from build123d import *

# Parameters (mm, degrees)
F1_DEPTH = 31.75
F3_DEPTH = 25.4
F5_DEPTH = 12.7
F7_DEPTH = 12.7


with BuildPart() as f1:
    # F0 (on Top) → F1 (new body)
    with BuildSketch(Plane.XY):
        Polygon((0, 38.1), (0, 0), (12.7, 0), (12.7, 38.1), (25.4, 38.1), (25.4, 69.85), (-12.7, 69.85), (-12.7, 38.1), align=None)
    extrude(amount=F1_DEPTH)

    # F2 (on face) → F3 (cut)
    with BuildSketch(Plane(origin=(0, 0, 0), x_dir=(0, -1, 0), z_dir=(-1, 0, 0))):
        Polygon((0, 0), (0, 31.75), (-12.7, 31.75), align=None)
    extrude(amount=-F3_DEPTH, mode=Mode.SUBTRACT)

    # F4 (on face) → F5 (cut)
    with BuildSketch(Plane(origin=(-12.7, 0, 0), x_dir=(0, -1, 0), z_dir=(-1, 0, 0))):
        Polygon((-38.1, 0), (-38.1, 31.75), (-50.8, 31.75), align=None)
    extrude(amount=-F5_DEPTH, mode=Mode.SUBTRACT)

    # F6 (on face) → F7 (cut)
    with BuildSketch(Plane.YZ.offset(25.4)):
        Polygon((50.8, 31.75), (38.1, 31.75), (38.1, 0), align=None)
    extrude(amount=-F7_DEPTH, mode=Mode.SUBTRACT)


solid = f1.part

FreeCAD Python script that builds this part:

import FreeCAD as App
import Part
import Sketcher

V = App.Vector
Q = App.Units.Quantity


def add_polygon(sketch, points):
    """Adds a closed chain of lines whose ends are joined by coincident constraints."""
    first, n = sketch.GeometryCount, len(points)
    for a, b in zip(points, points[1:] + points[:1]):
        sketch.addGeometry(Part.LineSegment(App.Vector(*a, 0), App.Vector(*b, 0)), False)
    for i in range(n):
        sketch.addConstraint(Sketcher.Constraint("Coincident", first + i, 2, first + (i + 1) % n, 1))

doc = App.newDocument("Part")
body = doc.addObject("PartDesign::Body", "Body")

# Sketch on XY plane
sketch1 = body.newObject("Sketcher::SketchObject", "Sketch")
sketch1.AttachmentSupport = (doc.getObject("XY_Plane"), [""])
sketch1.MapMode = "FlatFace"
add_polygon(sketch1, [(0, 38), (0, 0), (13, 0), (13, 38), (25, 38), (25, 70), (-13, 70), (-13, 38)])  # lines 0-7
sketch1.addConstraint(Sketcher.Constraint("Vertical", 0))
sketch1.addConstraint(Sketcher.Constraint("Horizontal", 1))
sketch1.addConstraint(Sketcher.Constraint("Vertical", 2))
sketch1.addConstraint(Sketcher.Constraint("Horizontal", 3))
sketch1.addConstraint(Sketcher.Constraint("Vertical", 4))
sketch1.addConstraint(Sketcher.Constraint("Horizontal", 5))
sketch1.addConstraint(Sketcher.Constraint("Vertical", 6))
sketch1.addConstraint(Sketcher.Constraint("Horizontal", 7))
sketch1.addConstraint(Sketcher.Constraint("Coincident", 0, 2, -1, 1))
sketch1.addConstraint(Sketcher.Constraint("Symmetric", 2, 2, 6, 2, -2))
sketch1.addConstraint(Sketcher.Constraint("Equal", 1, 3))
sketch1.addConstraint(Sketcher.Constraint("Equal", 5, 0))
sketch1.addConstraint(Sketcher.Constraint("DistanceX", 1, 1, 1, 2, Q("0.5 in")))
sketch1.addConstraint(Sketcher.Constraint("DistanceY", 4, 1, 4, 2, Q("1.25 in")))
pad1 = body.newObject("PartDesign::Pad", "Pad")
pad1.Profile = sketch1
pad1.Length = Q("1.25 in")

# Sketch on YZ plane
sketch2 = body.newObject("Sketcher::SketchObject", "Sketch001")
sketch2.AttachmentSupport = (doc.getObject("YZ_Plane"), [""])
sketch2.MapMode = "FlatFace"
add_polygon(sketch2, [(0, 0), (0, 32), (13, 32)])  # lines 0-2
sketch2.addConstraint(Sketcher.Constraint("Vertical", 0))
sketch2.addConstraint(Sketcher.Constraint("Horizontal", 1))
sketch2.addConstraint(Sketcher.Constraint("Coincident", 2, 2, -1, 1))
sketch2.addConstraint(Sketcher.Constraint("DistanceX", 1, 1, 1, 2, Q("0.5 in")))
sketch2.addConstraint(Sketcher.Constraint("DistanceY", 0, 1, 0, 2, Q("1.25 in")))
pocket1 = body.newObject("PartDesign::Pocket", "Pocket")
pocket1.Profile = sketch2
pocket1.Length = Q("1 in")
pocket1.Reversed = True

# Sketch on YZ plane
sketch3 = body.newObject("Sketcher::SketchObject", "Sketch002")
sketch3.AttachmentSupport = (doc.getObject("YZ_Plane"), [""])
sketch3.MapMode = "FlatFace"
sketch3.AttachmentOffset = App.Placement(V(0, 0, -0.5 * 25.4), App.Rotation())
add_polygon(sketch3, [(38, 0), (38, 32), (51, 32)])  # lines 0-2
sketch3.addConstraint(Sketcher.Constraint("Vertical", 0))
sketch3.addConstraint(Sketcher.Constraint("Horizontal", 1))
sketch3.addConstraint(Sketcher.Constraint("PointOnObject", 2, 2, -1))
sketch3.addConstraint(Sketcher.Constraint("DistanceX", 1, 1, 1, 2, Q("0.5 in")))
sketch3.addConstraint(Sketcher.Constraint("DistanceX", -1, 1, 1, 2, Q("2 in")))
sketch3.addConstraint(Sketcher.Constraint("DistanceY", 0, 1, 0, 2, Q("1.25 in")))
pocket2 = body.newObject("PartDesign::Pocket", "Pocket001")
pocket2.Profile = sketch3
pocket2.Length = Q("0.5 in")
pocket2.Reversed = True

# Sketch on YZ plane
sketch4 = body.newObject("Sketcher::SketchObject", "Sketch003")
sketch4.AttachmentSupport = (doc.getObject("YZ_Plane"), [""])
sketch4.MapMode = "FlatFace"
sketch4.AttachmentOffset = App.Placement(V(0, 0, 1 * 25.4), App.Rotation())
add_polygon(sketch4, [(51, 32), (38, 32), (38, 0)])  # lines 0-2
sketch4.addConstraint(Sketcher.Constraint("Horizontal", 0))
sketch4.addConstraint(Sketcher.Constraint("Vertical", 1))
sketch4.addConstraint(Sketcher.Constraint("PointOnObject", 1, 2, -1))
sketch4.addConstraint(Sketcher.Constraint("DistanceX", 0, 2, 0, 1, Q("0.5 in")))
sketch4.addConstraint(Sketcher.Constraint("DistanceX", -1, 1, 2, 2, Q("2 in")))
sketch4.addConstraint(Sketcher.Constraint("DistanceY", 1, 2, 1, 1, Q("1.25 in")))
pocket3 = body.newObject("PartDesign::Pocket", "Pocket002")
pocket3.Profile = sketch4
pocket3.Length = Q("0.5 in")

doc.recompute()
